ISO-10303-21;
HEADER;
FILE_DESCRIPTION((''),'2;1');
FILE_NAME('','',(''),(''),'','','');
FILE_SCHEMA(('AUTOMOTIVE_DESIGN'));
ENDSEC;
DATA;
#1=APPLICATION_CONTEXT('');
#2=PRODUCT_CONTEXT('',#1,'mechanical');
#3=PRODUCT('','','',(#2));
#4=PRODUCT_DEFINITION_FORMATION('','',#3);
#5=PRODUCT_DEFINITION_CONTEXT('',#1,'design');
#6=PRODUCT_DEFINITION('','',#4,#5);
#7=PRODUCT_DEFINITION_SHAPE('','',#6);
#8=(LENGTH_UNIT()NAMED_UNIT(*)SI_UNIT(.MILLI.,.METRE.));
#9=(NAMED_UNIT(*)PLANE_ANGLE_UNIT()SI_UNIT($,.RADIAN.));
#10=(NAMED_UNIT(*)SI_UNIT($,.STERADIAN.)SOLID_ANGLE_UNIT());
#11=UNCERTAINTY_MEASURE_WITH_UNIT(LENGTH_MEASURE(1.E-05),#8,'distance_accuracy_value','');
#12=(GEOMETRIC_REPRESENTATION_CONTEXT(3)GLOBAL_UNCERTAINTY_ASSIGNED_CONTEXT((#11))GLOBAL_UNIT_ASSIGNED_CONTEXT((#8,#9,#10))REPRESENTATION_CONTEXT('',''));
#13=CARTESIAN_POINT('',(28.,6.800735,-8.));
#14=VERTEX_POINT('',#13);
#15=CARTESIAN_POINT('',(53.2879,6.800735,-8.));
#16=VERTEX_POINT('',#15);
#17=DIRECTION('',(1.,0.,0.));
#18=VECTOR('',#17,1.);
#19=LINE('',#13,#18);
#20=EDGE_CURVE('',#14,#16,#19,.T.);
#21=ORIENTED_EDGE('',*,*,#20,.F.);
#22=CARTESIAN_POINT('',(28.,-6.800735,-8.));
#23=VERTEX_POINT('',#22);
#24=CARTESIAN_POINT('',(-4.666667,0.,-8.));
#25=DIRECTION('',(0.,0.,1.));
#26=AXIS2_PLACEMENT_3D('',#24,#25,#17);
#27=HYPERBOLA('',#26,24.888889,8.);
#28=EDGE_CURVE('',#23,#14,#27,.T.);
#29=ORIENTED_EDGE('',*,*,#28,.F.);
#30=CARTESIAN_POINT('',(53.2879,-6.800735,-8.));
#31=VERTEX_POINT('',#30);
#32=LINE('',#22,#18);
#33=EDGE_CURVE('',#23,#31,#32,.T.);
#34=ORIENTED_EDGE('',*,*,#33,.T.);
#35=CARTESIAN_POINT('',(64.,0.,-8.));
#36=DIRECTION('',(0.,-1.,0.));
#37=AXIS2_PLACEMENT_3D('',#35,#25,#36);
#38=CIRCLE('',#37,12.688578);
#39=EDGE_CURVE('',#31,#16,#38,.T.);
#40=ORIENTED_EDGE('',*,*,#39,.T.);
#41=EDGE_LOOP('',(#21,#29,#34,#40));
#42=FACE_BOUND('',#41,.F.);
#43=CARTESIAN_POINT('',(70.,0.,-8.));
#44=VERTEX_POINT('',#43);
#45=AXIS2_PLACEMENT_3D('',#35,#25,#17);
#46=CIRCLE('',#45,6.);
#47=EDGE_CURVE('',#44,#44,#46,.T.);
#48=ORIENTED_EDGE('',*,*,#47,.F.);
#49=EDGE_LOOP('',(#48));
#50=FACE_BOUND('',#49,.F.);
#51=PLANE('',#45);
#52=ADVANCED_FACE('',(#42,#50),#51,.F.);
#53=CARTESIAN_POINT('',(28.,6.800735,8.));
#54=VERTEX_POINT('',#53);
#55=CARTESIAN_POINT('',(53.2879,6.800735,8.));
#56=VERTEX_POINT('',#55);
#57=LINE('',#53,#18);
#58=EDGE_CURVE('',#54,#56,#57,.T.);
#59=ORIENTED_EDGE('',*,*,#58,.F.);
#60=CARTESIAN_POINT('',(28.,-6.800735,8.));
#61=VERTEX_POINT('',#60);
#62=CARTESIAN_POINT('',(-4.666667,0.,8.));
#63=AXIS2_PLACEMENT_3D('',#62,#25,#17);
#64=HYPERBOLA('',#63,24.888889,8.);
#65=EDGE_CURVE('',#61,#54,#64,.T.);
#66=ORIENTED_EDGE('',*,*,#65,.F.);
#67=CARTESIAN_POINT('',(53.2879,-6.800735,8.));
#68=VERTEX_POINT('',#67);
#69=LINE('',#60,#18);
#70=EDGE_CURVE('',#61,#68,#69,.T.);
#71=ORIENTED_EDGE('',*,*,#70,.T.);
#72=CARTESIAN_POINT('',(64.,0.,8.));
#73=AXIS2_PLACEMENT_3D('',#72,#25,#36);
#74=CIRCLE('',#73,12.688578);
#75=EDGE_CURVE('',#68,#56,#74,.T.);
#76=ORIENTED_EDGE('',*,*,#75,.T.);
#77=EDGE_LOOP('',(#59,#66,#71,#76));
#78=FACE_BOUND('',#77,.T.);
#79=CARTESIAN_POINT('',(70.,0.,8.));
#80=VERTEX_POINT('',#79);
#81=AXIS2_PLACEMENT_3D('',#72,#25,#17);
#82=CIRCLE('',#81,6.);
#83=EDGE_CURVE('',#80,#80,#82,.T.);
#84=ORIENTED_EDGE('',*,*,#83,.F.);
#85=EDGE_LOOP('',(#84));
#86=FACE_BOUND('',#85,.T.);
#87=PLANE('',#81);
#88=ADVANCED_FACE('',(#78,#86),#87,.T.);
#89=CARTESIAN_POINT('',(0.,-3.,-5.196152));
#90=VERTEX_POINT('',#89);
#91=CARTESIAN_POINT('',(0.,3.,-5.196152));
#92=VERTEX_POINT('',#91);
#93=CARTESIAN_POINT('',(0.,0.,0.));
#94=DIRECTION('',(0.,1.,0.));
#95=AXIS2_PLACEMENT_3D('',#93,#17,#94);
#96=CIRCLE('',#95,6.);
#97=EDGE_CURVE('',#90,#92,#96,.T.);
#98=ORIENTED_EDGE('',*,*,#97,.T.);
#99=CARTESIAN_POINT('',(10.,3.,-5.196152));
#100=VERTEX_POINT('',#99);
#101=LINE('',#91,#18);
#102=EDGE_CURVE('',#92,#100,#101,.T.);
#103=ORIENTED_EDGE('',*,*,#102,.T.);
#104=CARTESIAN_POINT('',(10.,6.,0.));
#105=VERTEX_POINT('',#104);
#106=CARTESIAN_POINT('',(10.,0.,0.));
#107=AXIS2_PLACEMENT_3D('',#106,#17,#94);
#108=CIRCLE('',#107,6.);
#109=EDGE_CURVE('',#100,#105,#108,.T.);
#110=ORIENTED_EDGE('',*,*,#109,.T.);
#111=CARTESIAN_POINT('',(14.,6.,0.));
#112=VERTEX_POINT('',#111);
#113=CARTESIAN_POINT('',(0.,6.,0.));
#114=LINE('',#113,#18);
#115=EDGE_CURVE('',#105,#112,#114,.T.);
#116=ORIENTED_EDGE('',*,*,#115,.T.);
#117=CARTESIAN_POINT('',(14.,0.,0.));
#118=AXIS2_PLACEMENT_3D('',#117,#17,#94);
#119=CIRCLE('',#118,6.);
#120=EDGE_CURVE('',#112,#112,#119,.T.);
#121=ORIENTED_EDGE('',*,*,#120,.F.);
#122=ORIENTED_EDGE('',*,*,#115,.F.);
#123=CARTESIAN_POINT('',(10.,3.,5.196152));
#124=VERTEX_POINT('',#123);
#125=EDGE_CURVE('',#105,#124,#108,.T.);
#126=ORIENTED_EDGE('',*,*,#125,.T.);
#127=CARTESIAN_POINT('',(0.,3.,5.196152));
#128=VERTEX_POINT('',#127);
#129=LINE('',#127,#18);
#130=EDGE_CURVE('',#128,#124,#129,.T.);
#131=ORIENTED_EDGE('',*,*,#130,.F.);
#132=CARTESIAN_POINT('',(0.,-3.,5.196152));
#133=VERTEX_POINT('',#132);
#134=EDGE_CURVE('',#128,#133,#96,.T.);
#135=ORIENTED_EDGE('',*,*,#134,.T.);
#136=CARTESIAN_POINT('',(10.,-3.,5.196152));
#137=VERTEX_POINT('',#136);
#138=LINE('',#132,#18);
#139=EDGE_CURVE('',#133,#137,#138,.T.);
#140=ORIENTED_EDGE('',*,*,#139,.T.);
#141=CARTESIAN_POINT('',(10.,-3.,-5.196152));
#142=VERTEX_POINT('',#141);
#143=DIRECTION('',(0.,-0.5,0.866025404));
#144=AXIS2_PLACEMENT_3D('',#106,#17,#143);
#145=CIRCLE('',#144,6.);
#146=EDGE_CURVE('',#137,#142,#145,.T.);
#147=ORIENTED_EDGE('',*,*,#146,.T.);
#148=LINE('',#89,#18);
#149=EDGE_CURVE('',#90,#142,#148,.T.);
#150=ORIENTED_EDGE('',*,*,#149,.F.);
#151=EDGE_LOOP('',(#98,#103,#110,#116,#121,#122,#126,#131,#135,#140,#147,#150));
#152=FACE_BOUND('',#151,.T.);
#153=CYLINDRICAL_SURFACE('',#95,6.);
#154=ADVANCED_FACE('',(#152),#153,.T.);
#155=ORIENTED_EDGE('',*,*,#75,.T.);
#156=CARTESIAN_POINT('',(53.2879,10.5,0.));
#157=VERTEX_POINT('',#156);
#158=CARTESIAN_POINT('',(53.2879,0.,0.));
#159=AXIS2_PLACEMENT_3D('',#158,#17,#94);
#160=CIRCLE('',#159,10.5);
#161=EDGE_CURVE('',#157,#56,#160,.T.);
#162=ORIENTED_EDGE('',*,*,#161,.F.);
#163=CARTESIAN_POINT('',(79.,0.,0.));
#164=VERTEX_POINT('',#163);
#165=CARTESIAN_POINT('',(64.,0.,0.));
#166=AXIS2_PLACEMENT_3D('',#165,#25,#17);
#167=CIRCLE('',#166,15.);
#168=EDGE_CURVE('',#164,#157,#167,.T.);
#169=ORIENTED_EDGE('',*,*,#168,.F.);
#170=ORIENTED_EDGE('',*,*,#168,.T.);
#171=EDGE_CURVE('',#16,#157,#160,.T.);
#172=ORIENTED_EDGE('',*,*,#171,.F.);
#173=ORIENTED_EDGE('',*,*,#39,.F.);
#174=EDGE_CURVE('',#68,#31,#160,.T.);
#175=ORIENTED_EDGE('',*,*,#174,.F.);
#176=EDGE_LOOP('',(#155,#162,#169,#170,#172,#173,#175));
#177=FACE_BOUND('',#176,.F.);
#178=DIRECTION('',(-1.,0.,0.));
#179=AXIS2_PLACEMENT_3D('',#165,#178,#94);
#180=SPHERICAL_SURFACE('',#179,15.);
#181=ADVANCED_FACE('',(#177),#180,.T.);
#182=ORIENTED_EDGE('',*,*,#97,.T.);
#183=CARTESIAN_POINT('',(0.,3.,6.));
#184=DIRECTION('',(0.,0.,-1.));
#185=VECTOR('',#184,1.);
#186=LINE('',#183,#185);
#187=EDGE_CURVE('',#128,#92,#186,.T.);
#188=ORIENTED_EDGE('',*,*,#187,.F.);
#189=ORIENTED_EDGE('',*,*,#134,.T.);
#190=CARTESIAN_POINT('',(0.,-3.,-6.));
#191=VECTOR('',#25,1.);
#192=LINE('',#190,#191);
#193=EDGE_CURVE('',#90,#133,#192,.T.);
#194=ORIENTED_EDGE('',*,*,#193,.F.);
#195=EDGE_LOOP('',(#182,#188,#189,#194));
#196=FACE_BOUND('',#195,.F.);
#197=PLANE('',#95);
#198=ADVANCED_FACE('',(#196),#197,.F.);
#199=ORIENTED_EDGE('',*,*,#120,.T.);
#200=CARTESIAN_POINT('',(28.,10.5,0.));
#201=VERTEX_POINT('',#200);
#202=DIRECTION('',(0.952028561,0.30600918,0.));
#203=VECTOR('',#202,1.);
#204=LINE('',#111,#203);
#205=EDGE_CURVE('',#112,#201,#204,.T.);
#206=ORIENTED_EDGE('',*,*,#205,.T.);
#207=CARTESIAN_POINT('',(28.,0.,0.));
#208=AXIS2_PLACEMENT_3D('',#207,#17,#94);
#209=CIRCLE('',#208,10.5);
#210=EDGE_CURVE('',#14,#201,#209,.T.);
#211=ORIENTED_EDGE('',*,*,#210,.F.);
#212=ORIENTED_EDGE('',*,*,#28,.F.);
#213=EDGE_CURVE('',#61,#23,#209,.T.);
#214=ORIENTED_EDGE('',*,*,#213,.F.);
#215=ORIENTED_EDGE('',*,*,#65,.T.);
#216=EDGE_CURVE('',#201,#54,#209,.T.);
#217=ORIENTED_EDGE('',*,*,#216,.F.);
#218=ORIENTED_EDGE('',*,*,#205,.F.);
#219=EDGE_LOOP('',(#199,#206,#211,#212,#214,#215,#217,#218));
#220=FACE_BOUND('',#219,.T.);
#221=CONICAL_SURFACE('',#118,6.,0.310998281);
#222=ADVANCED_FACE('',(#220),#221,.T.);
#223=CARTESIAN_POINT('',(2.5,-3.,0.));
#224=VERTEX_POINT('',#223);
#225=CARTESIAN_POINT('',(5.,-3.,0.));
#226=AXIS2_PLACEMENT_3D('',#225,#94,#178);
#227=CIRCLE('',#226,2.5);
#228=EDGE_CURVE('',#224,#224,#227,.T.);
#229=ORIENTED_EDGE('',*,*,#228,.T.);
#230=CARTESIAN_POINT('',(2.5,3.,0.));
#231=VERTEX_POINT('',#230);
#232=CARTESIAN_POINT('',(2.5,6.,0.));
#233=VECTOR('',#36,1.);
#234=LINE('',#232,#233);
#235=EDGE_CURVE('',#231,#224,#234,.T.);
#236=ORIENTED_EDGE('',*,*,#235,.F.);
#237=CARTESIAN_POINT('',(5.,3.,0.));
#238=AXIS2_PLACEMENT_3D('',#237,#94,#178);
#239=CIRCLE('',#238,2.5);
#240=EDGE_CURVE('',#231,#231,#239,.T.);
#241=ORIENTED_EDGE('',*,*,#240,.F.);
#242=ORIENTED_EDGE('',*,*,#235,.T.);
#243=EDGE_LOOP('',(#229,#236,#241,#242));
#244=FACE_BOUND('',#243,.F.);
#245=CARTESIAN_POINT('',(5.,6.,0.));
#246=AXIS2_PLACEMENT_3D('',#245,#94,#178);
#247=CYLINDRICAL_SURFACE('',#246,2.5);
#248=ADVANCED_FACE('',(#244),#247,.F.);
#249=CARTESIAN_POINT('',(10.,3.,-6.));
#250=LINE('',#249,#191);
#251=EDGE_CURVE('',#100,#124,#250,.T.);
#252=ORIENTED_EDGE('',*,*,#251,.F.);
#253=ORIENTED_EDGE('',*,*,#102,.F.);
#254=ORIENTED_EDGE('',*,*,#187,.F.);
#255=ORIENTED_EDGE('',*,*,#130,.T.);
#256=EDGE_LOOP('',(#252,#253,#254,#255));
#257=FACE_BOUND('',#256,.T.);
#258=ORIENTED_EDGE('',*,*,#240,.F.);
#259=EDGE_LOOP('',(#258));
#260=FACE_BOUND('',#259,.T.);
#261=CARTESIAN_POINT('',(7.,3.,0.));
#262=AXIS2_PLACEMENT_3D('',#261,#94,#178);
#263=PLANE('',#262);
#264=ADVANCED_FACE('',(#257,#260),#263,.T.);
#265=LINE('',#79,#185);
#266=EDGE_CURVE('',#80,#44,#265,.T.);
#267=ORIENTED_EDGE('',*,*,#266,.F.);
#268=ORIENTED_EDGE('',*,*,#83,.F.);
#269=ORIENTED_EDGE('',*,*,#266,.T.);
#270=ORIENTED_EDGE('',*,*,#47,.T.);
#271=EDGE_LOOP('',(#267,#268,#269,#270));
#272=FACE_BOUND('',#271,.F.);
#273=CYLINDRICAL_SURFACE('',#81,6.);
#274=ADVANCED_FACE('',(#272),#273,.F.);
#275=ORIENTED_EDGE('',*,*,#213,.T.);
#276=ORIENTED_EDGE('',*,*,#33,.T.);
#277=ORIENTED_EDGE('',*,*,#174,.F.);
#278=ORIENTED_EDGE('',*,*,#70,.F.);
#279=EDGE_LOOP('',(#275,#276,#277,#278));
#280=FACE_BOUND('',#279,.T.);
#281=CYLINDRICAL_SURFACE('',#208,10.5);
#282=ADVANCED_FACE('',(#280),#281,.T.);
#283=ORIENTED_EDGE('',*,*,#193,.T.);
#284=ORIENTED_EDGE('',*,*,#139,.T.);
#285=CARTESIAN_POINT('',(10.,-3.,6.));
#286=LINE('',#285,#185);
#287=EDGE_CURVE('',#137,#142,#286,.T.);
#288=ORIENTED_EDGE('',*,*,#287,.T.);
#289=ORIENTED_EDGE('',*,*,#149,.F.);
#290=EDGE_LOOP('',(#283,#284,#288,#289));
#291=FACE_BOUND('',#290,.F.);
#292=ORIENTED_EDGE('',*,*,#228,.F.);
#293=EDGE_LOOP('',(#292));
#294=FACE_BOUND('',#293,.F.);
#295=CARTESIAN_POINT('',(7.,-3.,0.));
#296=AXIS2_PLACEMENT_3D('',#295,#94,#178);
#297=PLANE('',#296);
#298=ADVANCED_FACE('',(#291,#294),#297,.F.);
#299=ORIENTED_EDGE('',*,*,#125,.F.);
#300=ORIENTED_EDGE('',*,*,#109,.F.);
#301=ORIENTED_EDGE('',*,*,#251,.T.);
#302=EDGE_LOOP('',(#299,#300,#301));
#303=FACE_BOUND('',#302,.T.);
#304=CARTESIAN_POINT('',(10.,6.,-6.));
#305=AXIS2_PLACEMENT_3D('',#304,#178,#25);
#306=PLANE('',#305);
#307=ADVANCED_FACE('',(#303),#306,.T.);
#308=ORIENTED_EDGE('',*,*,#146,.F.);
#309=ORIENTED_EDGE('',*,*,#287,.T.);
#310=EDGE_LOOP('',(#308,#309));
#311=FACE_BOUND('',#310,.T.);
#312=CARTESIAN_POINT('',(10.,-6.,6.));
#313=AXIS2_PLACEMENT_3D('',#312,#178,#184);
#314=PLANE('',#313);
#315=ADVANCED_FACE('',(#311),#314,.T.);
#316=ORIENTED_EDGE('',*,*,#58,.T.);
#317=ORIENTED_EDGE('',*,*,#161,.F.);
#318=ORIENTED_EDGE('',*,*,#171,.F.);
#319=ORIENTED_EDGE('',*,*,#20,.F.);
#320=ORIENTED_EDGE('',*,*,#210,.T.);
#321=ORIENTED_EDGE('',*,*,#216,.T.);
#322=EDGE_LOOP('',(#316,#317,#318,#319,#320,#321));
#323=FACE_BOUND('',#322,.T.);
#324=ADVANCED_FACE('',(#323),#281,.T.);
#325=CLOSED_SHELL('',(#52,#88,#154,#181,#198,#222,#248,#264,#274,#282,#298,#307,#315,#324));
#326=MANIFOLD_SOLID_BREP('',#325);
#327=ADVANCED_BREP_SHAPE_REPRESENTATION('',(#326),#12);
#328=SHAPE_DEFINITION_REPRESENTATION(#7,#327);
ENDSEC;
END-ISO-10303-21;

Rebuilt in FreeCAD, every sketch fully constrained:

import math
import FreeCAD as App
import Part
import Sketcher


def add_polygon(sketch, points):
    """Adds a closed chain of lines whose ends are joined by coincident constraints."""
    first, n = sketch.GeometryCount, len(points)
    for a, b in zip(points, points[1:] + points[:1]):
        sketch.addGeometry(Part.LineSegment(App.Vector(*a, 0), App.Vector(*b, 0)), False)
    for i in range(n):
        sketch.addConstraint(Sketcher.Constraint("Coincident", first + i, 2, first + (i + 1) % n, 1))

doc = App.newDocument("Part")
params = doc.addObject("Spreadsheet::Sheet", "Params")
for row, (alias, value) in enumerate([
    ("sketch1_radius", "15 mm"),
    ("sketch1_width", "14 mm"),
    ("sketch1_height", "6 mm"),
    ("revolution_angle", "360 deg"),
    ("sketch2_width", "86 mm"),
    ("sketch2_height", "33 mm"),
    ("pocket1_length", "10 mm"),
    ("sketch3_width", "95 mm"),
    ("sketch3_height", "39 mm"),
    ("pocket2_length", "10 mm"),
    ("sketch4_diameter", "12 mm"),
    ("pocket3_length", "16 mm"),
    ("sketch5_width", "10 mm"),
    ("sketch5_height", "12 mm"),
    ("pocket4_length", "3 mm"),
    ("sketch6_width", "10 mm"),
    ("sketch6_height", "12 mm"),
    ("pocket5_length", "3 mm"),
    ("sketch7_diameter", "5 mm"),
], start=1):
    params.set(f"A{row}", alias)
    params.set(f"B{row}", "=" + value)
    params.setAlias(f"B{row}", alias)

body = doc.addObject("PartDesign::Body", "Body")

# Sketch on XY plane
sketch1 = doc.addObject("Sketcher::SketchObject", "Sketch")
body.addObject(sketch1)
sketch1.AttachmentSupport = (doc.XY_Plane, [""])
sketch1.MapMode = "FlatFace"
sketch1.addGeometry(Part.LineSegment(App.Vector(14, 6, 0), App.Vector(0, 6, 0)), False)
sketch1.addGeometry(Part.LineSegment(App.Vector(0, 6, 0), App.Vector(0, 0, 0)), False)
sketch1.addGeometry(Part.LineSegment(App.Vector(0, 0, 0), App.Vector(79, 0, 0)), False)
sketch1.addGeometry(Part.ArcOfCircle(Part.Circle(App.Vector(64, 0, 0), App.Vector(0, 0, 1), 15), math.radians(0), math.radians(136)), False)
sketch1.addGeometry(Part.LineSegment(App.Vector(53, 10, 0), App.Vector(28, 10, 0)), False)
sketch1.addGeometry(Part.LineSegment(App.Vector(28, 10, 0), App.Vector(14, 6, 0)), False)
sketch1.addConstraint(Sketcher.Constraint("Coincident", 0, 2, 1, 1))
sketch1.addConstraint(Sketcher.Constraint("Coincident", 1, 2, 2, 1))
sketch1.addConstraint(Sketcher.Constraint("Coincident", 2, 2, 3, 1))
sketch1.addConstraint(Sketcher.Constraint("Coincident", 3, 2, 4, 1))
sketch1.addConstraint(Sketcher.Constraint("Coincident", 4, 2, 5, 1))
sketch1.addConstraint(Sketcher.Constraint("Coincident", 5, 2, 0, 1))
sketch1.addConstraint(Sketcher.Constraint("Horizontal", 0))
sketch1.addConstraint(Sketcher.Constraint("Vertical", 1))
sketch1.addConstraint(Sketcher.Constraint("Horizontal", 2))
sketch1.addConstraint(Sketcher.Constraint("Horizontal", 4))
sketch1.addConstraint(Sketcher.Constraint("Coincident", 1, 2, -1, 1))
sketch1.addConstraint(Sketcher.Constraint("PointOnObject", 3, 3, -1))
sketch1.addConstraint(Sketcher.Constraint("Radius", 3, 15.0))
sketch1.addConstraint(Sketcher.Constraint("DistanceX", 0, 2, 0, 1, 14.0))
sketch1.addConstraint(Sketcher.Constraint("DistanceX", -1, 1, 3, 3, 64.0))
sketch1.addConstraint(Sketcher.Constraint("DistanceX", 5, 2, 4, 2, 14.0))
sketch1.addConstraint(Sketcher.Constraint("DistanceY", 1, 2, 1, 1, 6.0))
sketch1.addConstraint(Sketcher.Constraint("DistanceY", -1, 1, 3, 2, 10.5))
sketch1.setExpression("Constraints[12]", "Params.sketch1_radius")
sketch1.setExpression("Constraints[13]", "Params.sketch1_width")
sketch1.setExpression("Constraints[16]", "Params.sketch1_height")
revolution = doc.addObject("PartDesign::Revolution", "Revolution")
body.addObject(revolution)
revolution.Profile = sketch1
revolution.ReferenceAxis = (sketch1, ["H_Axis"])
revolution.setExpression("Angle", "Params.revolution_angle")

# Sketch on XY plane
sketch2 = doc.addObject("Sketcher::SketchObject", "Sketch001")
body.addObject(sketch2)
sketch2.AttachmentSupport = (doc.XY_Plane, [""])
sketch2.MapMode = "FlatFace"
sketch2.AttachmentOffset = App.Placement(App.Vector(0, 0, -8), App.Rotation())
add_polygon(sketch2, [(82, -17), (82, 16), (-4, 16), (-4, -17)])  # lines 0-3
sketch2.addConstraint(Sketcher.Constraint("Vertical", 0))
sketch2.addConstraint(Sketcher.Constraint("Horizontal", 1))
sketch2.addConstraint(Sketcher.Constraint("Vertical", 2))
sketch2.addConstraint(Sketcher.Constraint("Horizontal", 3))
sketch2.addConstraint(Sketcher.Constraint("DistanceX", 1, 2, 1, 1, 86.0))
sketch2.addConstraint(Sketcher.Constraint("DistanceY", 0, 1, 0, 2, 33.0))
sketch2.addConstraint(Sketcher.Constraint("DistanceX", -1, 1, 0, 2, 82.0))
sketch2.addConstraint(Sketcher.Constraint("DistanceY", -1, 1, 0, 2, 16.0))
sketch2.setExpression("Constraints[8]", "Params.sketch2_width")
sketch2.setExpression("Constraints[9]", "Params.sketch2_height")
pocket1 = doc.addObject("PartDesign::Pocket", "Pocket")
body.addObject(pocket1)
pocket1.Profile = sketch2
pocket1.setExpression("Length", "Params.pocket1_length")

# Sketch on XY plane
sketch3 = doc.addObject("Sketcher::SketchObject", "Sketch002")
body.addObject(sketch3)
sketch3.AttachmentSupport = (doc.XY_Plane, [""])
sketch3.MapMode = "FlatFace"
sketch3.AttachmentOffset = App.Placement(App.Vector(0, 0, 8), App.Rotation())
add_polygon(sketch3, [(84, -17), (84, 22), (-11, 22), (-11, -17)])  # lines 0-3
sketch3.addConstraint(Sketcher.Constraint("Vertical", 0))
sketch3.addConstraint(Sketcher.Constraint("Horizontal", 1))
sketch3.addConstraint(Sketcher.Constraint("Vertical", 2))
sketch3.addConstraint(Sketcher.Constraint("Horizontal", 3))
sketch3.addConstraint(Sketcher.Constraint("DistanceX", 1, 2, 1, 1, 95.0))
sketch3.addConstraint(Sketcher.Constraint("DistanceY", 0, 1, 0, 2, 39.0))
sketch3.addConstraint(Sketcher.Constraint("DistanceX", -1, 1, 0, 2, 84.0))
sketch3.addConstraint(Sketcher.Constraint("DistanceY", -1, 1, 0, 2, 22.0))
sketch3.setExpression("Constraints[8]", "Params.sketch3_width")
sketch3.setExpression("Constraints[9]", "Params.sketch3_height")
pocket2 = doc.addObject("PartDesign::Pocket", "Pocket001")
body.addObject(pocket2)
pocket2.Profile = sketch3
pocket2.setExpression("Length", "Params.pocket2_length")
pocket2.Reversed = True

# Sketch on XY plane
sketch4 = doc.addObject("Sketcher::SketchObject", "Sketch003")
body.addObject(sketch4)
sketch4.AttachmentSupport = (doc.XY_Plane, [""])
sketch4.MapMode = "FlatFace"
sketch4.AttachmentOffset = App.Placement(App.Vector(0, 0, 8), App.Rotation())
sketch4.addGeometry(Part.Circle(App.Vector(64, 0, 0), App.Vector(0, 0, 1), 6), False)
sketch4.addConstraint(Sketcher.Constraint("PointOnObject", 0, 3, -1))
sketch4.addConstraint(Sketcher.Constraint("Diameter", 0, 12.0))
sketch4.addConstraint(Sketcher.Constraint("DistanceX", -1, 1, 0, 3, 64.0))
sketch4.setExpression("Constraints[1]", "Params.sketch4_diameter")
pocket3 = doc.addObject("PartDesign::Pocket", "Pocket002")
body.addObject(pocket3)
pocket3.Profile = sketch4
pocket3.setExpression("Length", "Params.pocket3_length")

# Sketch on XZ plane
sketch5 = doc.addObject("Sketcher::SketchObject", "Sketch004")
body.addObject(sketch5)
sketch5.AttachmentSupport = (doc.XZ_Plane, [""])
sketch5.MapMode = "FlatFace"
sketch5.AttachmentOffset = App.Placement(App.Vector(0, 0, -6), App.Rotation())
add_polygon(sketch5, [(0, -6), (0, 6), (10, 6), (10, -6)])  # lines 0-3
sketch5.addConstraint(Sketcher.Constraint("Vertical", 0))
sketch5.addConstraint(Sketcher.Constraint("Horizontal", 1))
sketch5.addConstraint(Sketcher.Constraint("Vertical", 2))
sketch5.addConstraint(Sketcher.Constraint("Horizontal", 3))
sketch5.addConstraint(Sketcher.Constraint("Symmetric", 0, 2, 3, 2, -1, 1))
sketch5.addConstraint(Sketcher.Constraint("DistanceX", 1, 1, 1, 2, 10.0))
sketch5.addConstraint(Sketcher.Constraint("DistanceY", 0, 1, 0, 2, 12.0))
sketch5.setExpression("Constraints[9]", "Params.sketch5_width")
sketch5.setExpression("Constraints[10]", "Params.sketch5_height")
pocket4 = doc.addObject("PartDesign::Pocket", "Pocket003")
body.addObject(pocket4)
pocket4.Profile = sketch5
pocket4.setExpression("Length", "Params.pocket4_length")
pocket4.Reversed = True

# Sketch on XZ plane
sketch6 = doc.addObject("Sketcher::SketchObject", "Sketch005")
body.addObject(sketch6)
sketch6.AttachmentSupport = (doc.XZ_Plane, [""])
sketch6.MapMode = "FlatFace"
sketch6.AttachmentOffset = App.Placement(App.Vector(0, 0, 6), App.Rotation())
add_polygon(sketch6, [(0, -6), (0, 6), (10, 6), (10, -6)])  # lines 0-3
sketch6.addConstraint(Sketcher.Constraint("Vertical", 0))
sketch6.addConstraint(Sketcher.Constraint("Horizontal", 1))
sketch6.addConstraint(Sketcher.Constraint("Vertical", 2))
sketch6.addConstraint(Sketcher.Constraint("Horizontal", 3))
sketch6.addConstraint(Sketcher.Constraint("Symmetric", 0, 2, 3, 2, -1, 1))
sketch6.addConstraint(Sketcher.Constraint("DistanceX", 1, 1, 1, 2, 10.0))
sketch6.addConstraint(Sketcher.Constraint("DistanceY", 0, 1, 0, 2, 12.0))
sketch6.setExpression("Constraints[9]", "Params.sketch6_width")
sketch6.setExpression("Constraints[10]", "Params.sketch6_height")
pocket5 = doc.addObject("PartDesign::Pocket", "Pocket004")
body.addObject(pocket5)
pocket5.Profile = sketch6
pocket5.setExpression("Length", "Params.pocket5_length")

# Sketch on XZ plane
sketch7 = doc.addObject("Sketcher::SketchObject", "Sketch006")
body.addObject(sketch7)
sketch7.AttachmentSupport = (doc.XZ_Plane, [""])
sketch7.MapMode = "FlatFace"
sketch7.AttachmentOffset = App.Placement(App.Vector(0, 0, -6), App.Rotation())
sketch7.addGeometry(Part.Circle(App.Vector(5, 0, 0), App.Vector(0, 0, 1), 2.5), False)
sketch7.addConstraint(Sketcher.Constraint("PointOnObject", 0, 3, -1))
sketch7.addConstraint(Sketcher.Constraint("Diameter", 0, 5.0))
sketch7.addConstraint(Sketcher.Constraint("DistanceX", -1, 1, 0, 3, 5.0))
sketch7.setExpression("Constraints[1]", "Params.sketch7_diameter")
pocket6 = doc.addObject("PartDesign::Pocket", "Pocket005")
body.addObject(pocket6)
pocket6.Profile = sketch7
pocket6.Type = "ThroughAll"
pocket6.Reversed = True

doc.recompute()
